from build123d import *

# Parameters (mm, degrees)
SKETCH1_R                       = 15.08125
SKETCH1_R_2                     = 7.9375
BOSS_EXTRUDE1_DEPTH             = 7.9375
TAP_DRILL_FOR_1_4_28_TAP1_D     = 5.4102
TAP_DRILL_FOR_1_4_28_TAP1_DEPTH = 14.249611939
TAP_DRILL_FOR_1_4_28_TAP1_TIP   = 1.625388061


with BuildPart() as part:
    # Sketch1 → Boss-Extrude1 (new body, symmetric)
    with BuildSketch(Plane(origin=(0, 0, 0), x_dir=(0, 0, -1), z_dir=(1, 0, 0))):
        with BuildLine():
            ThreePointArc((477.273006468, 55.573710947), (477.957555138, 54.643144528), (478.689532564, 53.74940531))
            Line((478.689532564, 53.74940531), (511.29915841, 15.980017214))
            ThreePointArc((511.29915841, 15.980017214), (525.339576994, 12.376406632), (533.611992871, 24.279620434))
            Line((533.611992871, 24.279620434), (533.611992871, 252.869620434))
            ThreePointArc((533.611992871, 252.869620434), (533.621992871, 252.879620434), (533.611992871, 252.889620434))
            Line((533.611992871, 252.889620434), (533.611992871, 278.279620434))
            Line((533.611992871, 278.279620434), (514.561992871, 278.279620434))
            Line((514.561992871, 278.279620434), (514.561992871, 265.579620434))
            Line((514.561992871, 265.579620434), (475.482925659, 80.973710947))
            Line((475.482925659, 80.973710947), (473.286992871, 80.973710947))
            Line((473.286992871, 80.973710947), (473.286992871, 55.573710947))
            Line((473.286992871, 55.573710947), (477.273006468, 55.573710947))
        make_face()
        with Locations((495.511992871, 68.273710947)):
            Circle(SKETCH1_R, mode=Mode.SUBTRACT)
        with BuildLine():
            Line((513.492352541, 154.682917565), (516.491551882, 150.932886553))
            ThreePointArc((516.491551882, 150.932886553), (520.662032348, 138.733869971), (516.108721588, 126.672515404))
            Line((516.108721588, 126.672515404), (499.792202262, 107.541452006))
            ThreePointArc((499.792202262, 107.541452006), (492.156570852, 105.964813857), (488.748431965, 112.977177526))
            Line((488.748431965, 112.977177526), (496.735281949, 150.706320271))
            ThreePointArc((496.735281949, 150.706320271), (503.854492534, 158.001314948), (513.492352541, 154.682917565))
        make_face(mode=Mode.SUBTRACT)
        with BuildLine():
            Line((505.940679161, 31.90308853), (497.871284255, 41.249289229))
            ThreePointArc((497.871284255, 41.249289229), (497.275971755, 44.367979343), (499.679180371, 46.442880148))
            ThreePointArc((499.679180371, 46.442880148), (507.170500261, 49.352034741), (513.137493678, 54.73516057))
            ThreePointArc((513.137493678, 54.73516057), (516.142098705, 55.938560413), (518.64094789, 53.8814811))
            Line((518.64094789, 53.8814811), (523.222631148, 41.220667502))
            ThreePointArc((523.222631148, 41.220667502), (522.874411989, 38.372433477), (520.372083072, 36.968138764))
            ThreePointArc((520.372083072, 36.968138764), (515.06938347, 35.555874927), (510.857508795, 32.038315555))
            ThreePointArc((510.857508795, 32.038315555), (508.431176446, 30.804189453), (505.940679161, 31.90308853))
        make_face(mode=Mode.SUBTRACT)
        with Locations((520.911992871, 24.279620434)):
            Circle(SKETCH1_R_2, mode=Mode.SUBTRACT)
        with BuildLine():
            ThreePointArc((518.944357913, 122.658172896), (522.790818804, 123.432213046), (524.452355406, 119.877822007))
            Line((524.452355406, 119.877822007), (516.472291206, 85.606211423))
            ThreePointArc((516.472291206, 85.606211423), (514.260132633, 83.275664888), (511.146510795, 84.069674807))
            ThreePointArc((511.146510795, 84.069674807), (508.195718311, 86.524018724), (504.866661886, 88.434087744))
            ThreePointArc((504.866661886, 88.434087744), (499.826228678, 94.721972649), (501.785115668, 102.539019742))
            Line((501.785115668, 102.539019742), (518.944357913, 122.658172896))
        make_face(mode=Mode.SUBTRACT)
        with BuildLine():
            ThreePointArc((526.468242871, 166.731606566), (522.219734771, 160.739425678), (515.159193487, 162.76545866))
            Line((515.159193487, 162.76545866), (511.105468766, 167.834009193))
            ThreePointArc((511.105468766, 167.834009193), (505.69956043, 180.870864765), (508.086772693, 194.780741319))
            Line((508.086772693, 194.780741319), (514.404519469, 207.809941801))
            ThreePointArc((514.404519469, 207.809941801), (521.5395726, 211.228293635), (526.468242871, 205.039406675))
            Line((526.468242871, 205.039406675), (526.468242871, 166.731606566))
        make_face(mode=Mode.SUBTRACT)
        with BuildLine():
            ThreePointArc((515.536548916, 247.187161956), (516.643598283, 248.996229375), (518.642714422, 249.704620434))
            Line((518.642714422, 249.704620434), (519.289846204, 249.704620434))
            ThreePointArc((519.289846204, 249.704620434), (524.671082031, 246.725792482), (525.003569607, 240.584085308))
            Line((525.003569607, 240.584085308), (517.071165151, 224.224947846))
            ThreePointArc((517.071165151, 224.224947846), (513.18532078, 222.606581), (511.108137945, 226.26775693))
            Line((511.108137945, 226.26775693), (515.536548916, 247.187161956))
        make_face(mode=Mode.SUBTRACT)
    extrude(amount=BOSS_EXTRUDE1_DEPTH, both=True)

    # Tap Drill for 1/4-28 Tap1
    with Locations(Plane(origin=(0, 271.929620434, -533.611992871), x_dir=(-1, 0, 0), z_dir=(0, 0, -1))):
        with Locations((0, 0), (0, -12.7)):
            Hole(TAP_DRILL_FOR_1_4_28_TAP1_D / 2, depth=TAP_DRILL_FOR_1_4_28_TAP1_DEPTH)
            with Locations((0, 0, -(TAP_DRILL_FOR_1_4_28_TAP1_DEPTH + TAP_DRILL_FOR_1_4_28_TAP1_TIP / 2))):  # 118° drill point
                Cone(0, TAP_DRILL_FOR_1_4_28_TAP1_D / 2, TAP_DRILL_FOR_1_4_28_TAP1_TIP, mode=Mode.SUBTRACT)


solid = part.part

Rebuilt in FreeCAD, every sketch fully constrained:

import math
import FreeCAD as App
import Part
import Sketcher

V = App.Vector
Q = App.Units.Quantity

doc = App.newDocument("Part")
params = doc.addObject("Spreadsheet::Sheet", "Params")
for row, (alias, value) in enumerate([
    ("sketch1_radius", "1 in"),
    ("sketch1_radius2", "0.5 in"),
    ("sketch1_width", "1 in"),
    ("sketch1_radius3", "0.75 in"),
    ("sketch1_radius4", "0.25 in"),
    ("pad1_length", "0.625 in"),
    ("sketch2_diameter", "0.213 in"),
    ("hole_diameter", "0.213 in"),
    ("hole_depth", "14.249612 mm"),
], start=1):
    params.set(f"A{row}", alias)
    params.set(f"B{row}", "=" + value)
    params.setAlias(f"B{row}", alias)

body = doc.addObject("PartDesign::Body", "Body")

# Sketch on YZ plane
sketch1 = body.newObject("Sketcher::SketchObject", "Sketch")
sketch1.AttachmentSupport = (doc.getObject("YZ_Plane"), [""])
sketch1.MapMode = "FlatFace"
sketch1.addGeometry([
    Part.ArcOfCircle(Part.Circle(V(68.274, -495.512, 0), V(0, 0, 1), 22.225), math.radians(124.85), math.radians(130.81)),  # 0
    Part.LineSegment(V(53.749, -478.69, 0), V(15.98, -511.299, 0)),  # 1
    Part.ArcOfCircle(Part.Circle(V(24.28, -520.912, 0), V(0, 0, 1), 12.7), math.radians(131), math.radians(270)),  # 2
    Part.LineSegment(V(24.28, -533.612, 0), V(252.87, -533.612, 0)),  # 3
    Part.ArcOfCircle(Part.Circle(V(252.88, -533.612, 0), V(0, 0, 1), 0.01), math.radians(180), math.radians(360)),  # 4
    Part.LineSegment(V(252.89, -533.612, 0), V(278.28, -533.612, 0)),  # 5
    Part.LineSegment(V(278.28, -533.612, 0), V(278.28, -514.562, 0)),  # 6
    Part.LineSegment(V(278.28, -514.562, 0), V(265.58, -514.562, 0)),  # 7
    Part.LineSegment(V(265.58, -514.562, 0), V(80.974, -475.483, 0)),  # 8
    Part.LineSegment(V(80.974, -475.483, 0), V(80.974, -473.287, 0)),  # 9
    Part.LineSegment(V(80.974, -473.287, 0), V(55.574, -473.287, 0)),  # 10
    Part.LineSegment(V(55.574, -473.287, 0), V(55.574, -477.273, 0)),  # 11
    Part.Circle(V(68.274, -495.512, 0), V(0, 0, 1), 15.081),  # 12
    Part.ArcOfCircle(Part.Circle(V(148.734, -506.054, 0), V(0, 0, 1), 9.525), math.radians(-51), math.radians(78)),  # 13
    Part.LineSegment(V(154.683, -513.492, 0), V(150.933, -516.492, 0)),  # 14
    Part.ArcOfCircle(Part.Circle(V(139.034, -501.614, 0), V(0, 0, 1), 19.05), math.radians(-130), math.radians(-51)),  # 15
    Part.LineSegment(V(126.673, -516.109, 0), V(107.541, -499.792, 0)),  # 16
    Part.ArcOfCircle(Part.Circle(V(111.662, -494.961, 0), V(0, 0, 1), 6.35), math.radians(78), math.radians(230)),  # 17
    Part.LineSegment(V(112.977, -488.748, 0), V(150.706, -496.735, 0)),  # 18
    Part.ArcOfCircle(Part.Circle(V(33.978, -508.344, 0), V(0, 0, 1), 3.175), math.radians(131), math.radians(232)),  # 19
    Part.LineSegment(V(31.903, -505.941, 0), V(41.249, -497.871, 0)),  # 20
    Part.ArcOfCircle(Part.Circle(V(43.324, -500.274, 0), V(0, 0, 1), 3.175), math.radians(11), math.radians(131)),  # 21
    Part.ArcOfCircle(Part.Circle(V(68.274, -495.512, 0), V(0, 0, 1), 22.225), math.radians(-169), math.radians(-128)),  # 22
    Part.ArcOfCircle(Part.Circle(V(52.801, -515.655, 0), V(0, 0, 1), 3.175), math.radians(-70), math.radians(52)),  # 23
    Part.LineSegment(V(53.881, -518.641, 0), V(41.221, -523.223, 0)),  # 24
    Part.ArcOfCircle(Part.Circle(V(40.14, -520.237, 0), V(0, 0, 1), 3.175), math.radians(-178), math.radians(-70)),  # 25
    Part.ArcOfCircle(Part.Circle(V(24.28, -520.912, 0), V(0, 0, 1), 12.7), math.radians(2), math.radians(52)),  # 26
    Part.Circle(V(24.28, -520.912, 0), V(0, 0, 1), 7.938),  # 27
    Part.LineSegment(V(102.539, -501.785, 0), V(122.658, -518.944, 0)),  # 28
    Part.ArcOfCircle(Part.Circle(V(120.598, -521.36, 0), V(0, 0, 1), 3.175), math.radians(-103), math.radians(50)),  # 29
    Part.LineSegment(V(119.878, -524.452, 0), V(85.606, -516.472, 0)),  # 30
    Part.ArcOfCircle(Part.Circle(V(86.326, -513.38, 0), V(0, 0, 1), 3.175), math.radians(135), math.radians(257)),  # 31
    Part.ArcOfCircle(Part.Circle(V(68.274, -495.512, 0), V(0, 0, 1), 22.225), math.radians(-44.71), math.radians(-24.89)),  # 32
    Part.ArcOfCircle(Part.Circle(V(96.657, -508.682, 0), V(0, 0, 1), 9.065), math.radians(50), math.radians(155)),  # 33
    Part.LineSegment(V(205.039, -526.468, 0), V(166.732, -526.468, 0)),  # 34
    Part.ArcOfCircle(Part.Circle(V(166.732, -520.118, 0), V(0, 0, 1), 6.35), math.radians(129), math.radians(270)),  # 35
    Part.LineSegment(V(162.765, -515.159, 0), V(167.834, -511.105, 0)),  # 36
    Part.ArcOfCircle(Part.Circle(V(183.699, -530.942, 0), V(0, 0, 1), 25.4), math.radians(64), math.radians(129)),  # 37
    Part.LineSegment(V(194.781, -508.087, 0), V(207.81, -514.405, 0)),  # 38
    Part.ArcOfCircle(Part.Circle(V(205.039, -520.118, 0), V(0, 0, 1), 6.35), math.radians(-90), math.radians(64)),  # 39
    Part.LineSegment(V(226.268, -511.108, 0), V(247.187, -515.537, 0)),  # 40
    Part.ArcOfCircle(Part.Circle(V(246.53, -518.643, 0), V(0, 0, 1), 3.175), math.radians(0), math.radians(78)),  # 41
    Part.LineSegment(V(249.705, -518.643, 0), V(249.705, -519.29, 0)),  # 42
    Part.ArcOfCircle(Part.Circle(V(243.355, -519.29, 0), V(0, 0, 1), 6.35), math.radians(-116), math.radians(0)),  # 43
    Part.LineSegment(V(240.584, -525.004, 0), V(224.225, -517.071, 0)),  # 44
    Part.ArcOfCircle(Part.Circle(V(225.61, -514.214, 0), V(0, 0, 1), 3.175), math.radians(78), math.radians(244)),  # 45
], False)
sketch1.addConstraint([
    Sketcher.Constraint("Tangent", 0, 2, 1, 1),
    Sketcher.Constraint("Tangent", 1, 2, 2, 1),
    Sketcher.Constraint("Tangent", 2, 2, 3, 1),
    Sketcher.Constraint("Coincident", 3, 2, 4, 1),
    Sketcher.Constraint("Coincident", 4, 2, 5, 1),
    Sketcher.Constraint("Coincident", 5, 2, 6, 1),
    Sketcher.Constraint("Coincident", 6, 2, 7, 1),
    Sketcher.Constraint("Coincident", 7, 2, 8, 1),
    Sketcher.Constraint("Coincident", 8, 2, 9, 1),
    Sketcher.Constraint("Coincident", 9, 2, 10, 1),
    Sketcher.Constraint("Coincident", 10, 2, 11, 1),
    Sketcher.Constraint("Coincident", 11, 2, 0, 1),
    Sketcher.Constraint("Tangent", 13, 1, 14, 1),
    Sketcher.Constraint("Tangent", 14, 2, 15, 2),
    Sketcher.Constraint("Tangent", 15, 1, 16, 1),
    Sketcher.Constraint("Tangent", 16, 2, 17, 2),
    Sketcher.Constraint("Tangent", 17, 1, 18, 1),
    Sketcher.Constraint("Tangent", 18, 2, 13, 2),
    Sketcher.Constraint("Tangent", 19, 1, 20, 1),
    Sketcher.Constraint("Tangent", 20, 2, 21, 2),
    Sketcher.Constraint("Tangent", 21, 1, 22, 1),
    Sketcher.Constraint("Tangent", 22, 2, 23, 2),
    Sketcher.Constraint("Tangent", 23, 1, 24, 1),
    Sketcher.Constraint("Tangent", 24, 2, 25, 2),
    Sketcher.Constraint("Tangent", 25, 1, 26, 1),
    Sketcher.Constraint("Tangent", 26, 2, 19, 2),
    Sketcher.Constraint("Tangent", 28, 2, 29, 2),
    Sketcher.Constraint("Tangent", 29, 1, 30, 1),
    Sketcher.Constraint("Tangent", 30, 2, 31, 2),
    Sketcher.Constraint("Tangent", 31, 1, 32, 1),
    Sketcher.Constraint("Tangent", 32, 2, 33, 2),
    Sketcher.Constraint("Tangent", 33, 1, 28, 1),
    Sketcher.Constraint("Tangent", 34, 2, 35, 2),
    Sketcher.Constraint("Tangent", 35, 1, 36, 1),
    Sketcher.Constraint("Tangent", 36, 2, 37, 2),
    Sketcher.Constraint("Tangent", 37, 1, 38, 1),
    Sketcher.Constraint("Tangent", 38, 2, 39, 2),
    Sketcher.Constraint("Tangent", 39, 1, 34, 1),
    Sketcher.Constraint("Tangent", 40, 2, 41, 2),
    Sketcher.Constraint("Tangent", 41, 1, 42, 1),
    Sketcher.Constraint("Tangent", 42, 2, 43, 2),
    Sketcher.Constraint("Tangent", 43, 1, 44, 1),
    Sketcher.Constraint("Tangent", 44, 2, 45, 2),
    Sketcher.Constraint("Tangent", 45, 1, 40, 1),
    Sketcher.Constraint("Horizontal", 3),
    Sketcher.Constraint("Horizontal", 5),
    Sketcher.Constraint("Vertical", 6),
    Sketcher.Constraint("Horizontal", 7),
    Sketcher.Constraint("Vertical", 9),
    Sketcher.Constraint("Horizontal", 10),
    Sketcher.Constraint("Vertical", 11),
    Sketcher.Constraint("Horizontal", 34),
    Sketcher.Constraint("Vertical", 42),
    Sketcher.Constraint("Coincident", 12, 3, 0, 3),
    Sketcher.Constraint("Coincident", 22, 3, 0, 3),
    Sketcher.Constraint("Coincident", 26, 3, 2, 3),
    Sketcher.Constraint("Coincident", 27, 3, 2, 3),
    Sketcher.Constraint("Coincident", 32, 3, 0, 3),
    Sketcher.Constraint("Equal", 19, 21),
    Sketcher.Constraint("Equal", 0, 22),
    Sketcher.Constraint("Equal", 21, 23),
    Sketcher.Constraint("Equal", 23, 25),
    Sketcher.Constraint("Equal", 2, 26),
    Sketcher.Constraint("Equal", 25, 29),
    Sketcher.Constraint("Equal", 29, 31),
    Sketcher.Constraint("Equal", 22, 32),
    Sketcher.Constraint("Equal", 17, 35),
    Sketcher.Constraint("Equal", 35, 39),
    Sketcher.Constraint("Equal", 31, 41),
    Sketcher.Constraint("Equal", 39, 43),
    Sketcher.Constraint("Equal", 41, 45),
    Sketcher.Constraint("Parallel", 8, 18),
    Sketcher.Constraint("Parallel", 1, 20),
    Sketcher.Constraint("Parallel", 16, 28),
    Sketcher.Constraint("Parallel", 14, 36),
    Sketcher.Constraint("Parallel", 18, 40),
    Sketcher.Constraint("Parallel", 38, 44),
    Sketcher.Constraint("Horizontal", 4, 3, 2, 2),
    Sketcher.Constraint("Horizontal", 3, 2, 4, 2),
    Sketcher.Constraint("Radius", 37, Q("1 in")),
    Sketcher.Constraint("Radius", 2, Q("0.5 in")),
    Sketcher.Constraint("DistanceX", 10, 2, 10, 1, Q("1 in")),
    Sketcher.Constraint("Radius", 15, Q("0.75 in")),
    Sketcher.Constraint("Radius", 17, Q("0.25 in")),
    Sketcher.Constraint("Diameter", 12, Q("1.1875 in")),
    Sketcher.Constraint("Diameter", 27, Q("0.625 in")),
    Sketcher.Constraint("DistanceX", 7, 2, 7, 1, Q("0.5 in")),
    Sketcher.Constraint("Radius", 0, Q("0.875 in")),
    Sketcher.Constraint("Radius", 13, Q("0.375 in")),
    Sketcher.Constraint("Radius", 19, Q("0.125 in")),
    Sketcher.Constraint("DistanceY", 6, 1, 6, 2, Q("0.75 in")),
    Sketcher.Constraint("Radius", 4, 0.01),
    Sketcher.Constraint("Radius", 33, 9.064729),
    Sketcher.Constraint("DistanceX", 3, 1, 3, 2, 228.59),
    Sketcher.Constraint("DistanceX", 5, 1, 5, 2, 25.39),
    Sketcher.Constraint("DistanceX", 34, 2, 34, 1, 38.3078),
    Sketcher.Constraint("DistanceY", 42, 2, 42, 1, 0.647132),
    Sketcher.Constraint("DistanceX", -1, 1, 37, 3, 183.698601),
    Sketcher.Constraint("Distance", 1, 49.899042),
    Sketcher.Constraint("Distance", 40, 21.382992),
    Sketcher.Constraint("Distance", 44, 18.180881),
    Sketcher.Constraint("DistanceY", 9, 1, 9, 2, 2.195933),
    Sketcher.Constraint("DistanceY", 11, 2, 11, 1, 3.986014),
    Sketcher.Constraint("DistanceX", -1, 1, 0, 3, 68.273711),
    Sketcher.Constraint("DistanceX", -1, 1, 2, 3, 24.27962),
    Sketcher.Constraint("DistanceY", 13, 3, -1, 1, 506.053778),
    Sketcher.Constraint("DistanceX", -1, 1, 19, 3, 33.977989),
    Sketcher.Constraint("DistanceX", -1, 1, 23, 3, 52.801082),
    Sketcher.Constraint("DistanceX", -1, 1, 25, 3, 40.140268),
    Sketcher.Constraint("DistanceX", -1, 1, 29, 3, 120.597852),
    Sketcher.Constraint("DistanceX", -1, 1, 31, 3, 86.326241),
    Sketcher.Constraint("DistanceX", -1, 1, 41, 3, 246.52962),
    Sketcher.Constraint("DistanceY", 1, 2, -1, 1, 511.299158),
    Sketcher.Constraint("DistanceY", 14, 2, -1, 1, 516.491552),
    Sketcher.Constraint("DistanceY", 15, 1, -1, 1, 516.108722),
    Sketcher.Constraint("DistanceY", 17, 1, -1, 1, 488.748432),
    Sketcher.Constraint("DistanceX", -1, 1, 18, 2, 150.70632),
    Sketcher.Constraint("DistanceX", -1, 1, 30, 2, 85.606211),
    Sketcher.Constraint("DistanceY", 36, 2, -1, 1, 511.105469),
    Sketcher.Constraint("DistanceY", 40, 2, -1, 1, 515.536549),
])
sketch1.setExpression("Constraints[79]", "Params.sketch1_radius")
sketch1.setExpression("Constraints[80]", "Params.sketch1_radius2")
sketch1.setExpression("Constraints[81]", "Params.sketch1_width")
sketch1.setExpression("Constraints[82]", "Params.sketch1_radius3")
sketch1.setExpression("Constraints[83]", "Params.sketch1_radius4")
pad1 = body.newObject("PartDesign::Pad", "Pad")
pad1.Profile = sketch1
pad1.setExpression("Length", "Params.pad1_length")
pad1.Midplane = True

# Sketch on XY plane
sketch2 = body.newObject("Sketcher::SketchObject", "Sketch001")
sketch2.AttachmentSupport = (doc.getObject("XY_Plane"), [""])
sketch2.MapMode = "FlatFace"
sketch2.AttachmentOffset = App.Placement(V(0, 0, -533.611993), App.Rotation())
sketch2.addGeometry([
    Part.Circle(V(0, 271.9, 0), V(0, 0, 1), 2.7),
    Part.Circle(V(0, 259.2, 0), V(0, 0, 1), 2.7),
], False)
sketch2.addConstraint([
    Sketcher.Constraint("Equal", 0, 1),
    Sketcher.Constraint("PointOnObject", 0, 3, -2),
    Sketcher.Constraint("PointOnObject", 1, 3, -2),
    Sketcher.Constraint("Diameter", 0, Q("0.213 in")),
    Sketcher.Constraint("DistanceY", 1, 3, 0, 3, Q("0.5 in")),
    Sketcher.Constraint("DistanceY", -1, 1, 0, 3, 271.92962),
])
sketch2.setExpression("Constraints[3]", "Params.sketch2_diameter")
doc.recompute()
hole = body.newObject("PartDesign::Hole", "Hole")
hole.Profile = sketch2
hole.ThreadType = "None"
hole.setExpression("Diameter", "Params.hole_diameter")
hole.DepthType = "Dimension"
hole.setExpression("Depth", "Params.hole_depth")
hole.DrillPoint = "Angled"
hole.DrillPointAngle = 118
hole.Reversed = True

doc.recompute()
